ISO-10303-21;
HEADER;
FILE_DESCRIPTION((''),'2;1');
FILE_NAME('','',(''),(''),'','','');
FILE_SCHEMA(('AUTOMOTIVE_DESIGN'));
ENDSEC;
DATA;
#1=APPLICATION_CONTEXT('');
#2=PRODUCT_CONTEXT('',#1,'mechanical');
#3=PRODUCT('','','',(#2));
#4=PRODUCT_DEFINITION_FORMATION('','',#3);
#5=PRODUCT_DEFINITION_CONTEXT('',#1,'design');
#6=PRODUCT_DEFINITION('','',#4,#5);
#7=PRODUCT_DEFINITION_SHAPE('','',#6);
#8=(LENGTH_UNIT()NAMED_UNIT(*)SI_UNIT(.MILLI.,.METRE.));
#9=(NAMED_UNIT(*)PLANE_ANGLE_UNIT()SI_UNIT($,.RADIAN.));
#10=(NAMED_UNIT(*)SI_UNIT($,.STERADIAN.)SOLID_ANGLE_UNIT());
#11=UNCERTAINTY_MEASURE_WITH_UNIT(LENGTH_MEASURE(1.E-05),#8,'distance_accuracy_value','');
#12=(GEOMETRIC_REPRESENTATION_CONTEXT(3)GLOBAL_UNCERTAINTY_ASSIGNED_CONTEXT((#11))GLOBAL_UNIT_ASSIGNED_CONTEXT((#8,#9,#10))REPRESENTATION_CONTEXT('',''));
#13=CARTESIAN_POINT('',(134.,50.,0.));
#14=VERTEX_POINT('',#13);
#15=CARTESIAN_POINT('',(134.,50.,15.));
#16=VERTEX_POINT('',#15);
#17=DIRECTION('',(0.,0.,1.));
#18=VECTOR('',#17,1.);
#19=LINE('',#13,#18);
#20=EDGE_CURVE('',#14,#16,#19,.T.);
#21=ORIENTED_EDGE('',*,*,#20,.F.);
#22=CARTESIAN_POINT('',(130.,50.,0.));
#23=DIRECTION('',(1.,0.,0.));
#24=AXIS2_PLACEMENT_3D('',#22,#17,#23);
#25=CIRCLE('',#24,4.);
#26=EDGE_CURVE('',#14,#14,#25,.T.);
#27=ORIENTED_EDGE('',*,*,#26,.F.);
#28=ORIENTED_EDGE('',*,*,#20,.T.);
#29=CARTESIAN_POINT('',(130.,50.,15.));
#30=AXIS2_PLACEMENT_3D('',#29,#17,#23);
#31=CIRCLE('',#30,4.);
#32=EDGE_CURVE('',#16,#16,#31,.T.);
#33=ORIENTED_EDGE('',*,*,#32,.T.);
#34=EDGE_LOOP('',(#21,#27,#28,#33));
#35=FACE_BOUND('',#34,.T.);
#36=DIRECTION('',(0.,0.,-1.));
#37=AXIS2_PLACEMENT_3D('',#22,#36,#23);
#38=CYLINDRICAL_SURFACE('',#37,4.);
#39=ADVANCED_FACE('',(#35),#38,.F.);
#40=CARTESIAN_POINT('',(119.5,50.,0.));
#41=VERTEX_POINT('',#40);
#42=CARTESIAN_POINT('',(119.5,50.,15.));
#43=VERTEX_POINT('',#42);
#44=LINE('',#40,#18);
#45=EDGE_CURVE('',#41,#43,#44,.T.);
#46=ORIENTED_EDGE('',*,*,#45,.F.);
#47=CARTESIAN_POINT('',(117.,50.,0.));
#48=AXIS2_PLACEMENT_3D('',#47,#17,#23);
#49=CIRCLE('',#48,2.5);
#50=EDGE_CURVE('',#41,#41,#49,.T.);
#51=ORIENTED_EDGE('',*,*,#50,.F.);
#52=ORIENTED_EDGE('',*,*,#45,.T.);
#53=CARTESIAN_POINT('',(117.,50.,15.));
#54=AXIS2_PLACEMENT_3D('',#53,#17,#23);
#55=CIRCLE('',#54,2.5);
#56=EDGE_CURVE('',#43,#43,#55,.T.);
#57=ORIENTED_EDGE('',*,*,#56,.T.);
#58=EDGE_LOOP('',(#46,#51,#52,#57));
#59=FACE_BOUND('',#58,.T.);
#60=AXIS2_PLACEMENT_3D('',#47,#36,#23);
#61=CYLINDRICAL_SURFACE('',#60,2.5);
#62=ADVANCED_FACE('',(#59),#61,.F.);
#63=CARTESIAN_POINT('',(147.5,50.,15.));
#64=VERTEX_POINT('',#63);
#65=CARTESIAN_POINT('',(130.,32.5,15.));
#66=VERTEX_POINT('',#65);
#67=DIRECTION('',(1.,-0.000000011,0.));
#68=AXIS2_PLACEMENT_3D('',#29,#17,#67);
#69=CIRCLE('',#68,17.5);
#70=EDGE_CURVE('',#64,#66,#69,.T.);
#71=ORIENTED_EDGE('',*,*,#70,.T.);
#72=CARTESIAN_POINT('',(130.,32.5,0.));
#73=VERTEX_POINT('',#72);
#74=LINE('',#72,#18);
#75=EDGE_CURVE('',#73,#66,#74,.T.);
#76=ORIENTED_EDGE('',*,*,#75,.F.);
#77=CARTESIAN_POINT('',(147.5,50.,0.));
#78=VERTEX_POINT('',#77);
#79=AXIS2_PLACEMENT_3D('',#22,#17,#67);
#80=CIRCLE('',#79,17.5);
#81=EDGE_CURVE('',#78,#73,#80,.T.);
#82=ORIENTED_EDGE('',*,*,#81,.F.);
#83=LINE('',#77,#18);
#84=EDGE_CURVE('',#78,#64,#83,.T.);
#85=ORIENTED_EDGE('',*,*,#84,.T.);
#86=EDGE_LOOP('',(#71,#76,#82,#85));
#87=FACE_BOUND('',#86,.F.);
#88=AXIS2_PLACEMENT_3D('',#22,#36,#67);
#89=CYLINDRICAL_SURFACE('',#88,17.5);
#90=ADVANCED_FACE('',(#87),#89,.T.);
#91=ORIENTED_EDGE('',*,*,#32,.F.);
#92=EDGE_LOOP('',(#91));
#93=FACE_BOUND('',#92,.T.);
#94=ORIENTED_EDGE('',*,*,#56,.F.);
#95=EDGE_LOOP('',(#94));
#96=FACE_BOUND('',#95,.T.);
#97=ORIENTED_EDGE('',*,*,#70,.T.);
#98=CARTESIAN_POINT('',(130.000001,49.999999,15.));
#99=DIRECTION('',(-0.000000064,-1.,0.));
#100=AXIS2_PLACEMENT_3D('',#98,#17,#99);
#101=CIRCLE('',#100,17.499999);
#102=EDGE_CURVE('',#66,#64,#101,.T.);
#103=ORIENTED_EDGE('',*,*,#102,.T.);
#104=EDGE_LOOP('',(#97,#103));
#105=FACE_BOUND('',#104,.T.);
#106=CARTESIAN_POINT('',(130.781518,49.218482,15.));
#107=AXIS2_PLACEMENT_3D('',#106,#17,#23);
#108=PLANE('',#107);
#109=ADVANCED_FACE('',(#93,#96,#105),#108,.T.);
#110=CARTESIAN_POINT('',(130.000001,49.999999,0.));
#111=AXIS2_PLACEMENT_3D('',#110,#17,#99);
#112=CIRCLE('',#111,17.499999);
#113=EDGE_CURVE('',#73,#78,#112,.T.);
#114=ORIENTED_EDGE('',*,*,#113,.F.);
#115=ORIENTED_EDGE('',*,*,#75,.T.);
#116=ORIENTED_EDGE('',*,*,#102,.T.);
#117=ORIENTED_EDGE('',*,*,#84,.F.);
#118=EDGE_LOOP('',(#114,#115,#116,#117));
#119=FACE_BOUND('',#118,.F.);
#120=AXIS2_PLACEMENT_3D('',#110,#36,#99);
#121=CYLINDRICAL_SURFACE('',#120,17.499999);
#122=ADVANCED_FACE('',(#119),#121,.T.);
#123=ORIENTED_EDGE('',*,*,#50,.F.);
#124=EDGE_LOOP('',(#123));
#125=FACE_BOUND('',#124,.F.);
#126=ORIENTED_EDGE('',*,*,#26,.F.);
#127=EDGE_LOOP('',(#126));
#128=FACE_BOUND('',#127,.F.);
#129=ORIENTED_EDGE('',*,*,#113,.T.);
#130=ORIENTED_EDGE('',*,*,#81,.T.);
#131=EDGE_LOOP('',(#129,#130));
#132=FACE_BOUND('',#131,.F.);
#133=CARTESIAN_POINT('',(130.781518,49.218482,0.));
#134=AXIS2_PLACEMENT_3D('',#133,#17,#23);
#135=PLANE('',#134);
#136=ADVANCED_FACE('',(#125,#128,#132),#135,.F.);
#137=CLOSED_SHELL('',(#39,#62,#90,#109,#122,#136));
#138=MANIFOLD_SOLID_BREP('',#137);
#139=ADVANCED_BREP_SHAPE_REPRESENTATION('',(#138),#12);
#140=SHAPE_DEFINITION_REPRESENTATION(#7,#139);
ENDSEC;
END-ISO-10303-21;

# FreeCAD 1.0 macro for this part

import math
import FreeCAD as App
import Part
import Sketcher
Q = App.Units.Quantity

doc = App.newDocument("Part")
body = doc.addObject("PartDesign::Body", "Body")

sketch1 = body.newObject("Sketcher::SketchObject", "Sketch")
sketch1.AttachmentSupport = (doc.getObject("XY_Plane"), [""])
sketch1.MapMode = "FlatFace"
sketch1.addGeometry([
    Part.ArcOfCircle(Part.Circle(App.Vector(130, 50, 0), App.Vector(0, 0, 1), 17.5), math.radians(-90), math.radians(0)),
    Part.ArcOfCircle(Part.Circle(App.Vector(130, 50, 0), App.Vector(0, 0, 1), 17.5), math.radians(0), math.radians(270)),
    Part.Circle(App.Vector(117, 50, 0), App.Vector(0, 0, 1), 2.5),
    Part.Circle(App.Vector(130, 50, 0), App.Vector(0, 0, 1), 4),
], False)
sketch1.addConstraint([
    Sketcher.Constraint("Tangent", 0, 1, 1, 2),
    Sketcher.Constraint("Coincident", 1, 1, 0, 2),
    Sketcher.Constraint("Coincident", 3, 3, 0, 3),
    Sketcher.Constraint("Horizontal", 1, 3, 2, 3),
    Sketcher.Constraint("Horizontal", 3, 3, 1, 1),
    Sketcher.Constraint("Vertical", 3, 3, 0, 1),
    Sketcher.Constraint("Diameter", 2, Q("5 mm")),
    Sketcher.Constraint("Diameter", 3, Q("8 mm")),
    Sketcher.Constraint("Radius", 0, Q("17.499999 mm")),
    Sketcher.Constraint("DistanceX", -1, 1, 0, 3, Q("130.000001 mm")),
    Sketcher.Constraint("DistanceY", -1, 1, 0, 3, Q("49.999999 mm")),
    Sketcher.Constraint("DistanceX", -1, 1, 2, 3, Q("117 mm")),
])
pad1 = body.newObject("PartDesign::Pad", "Pad")
pad1.Profile = sketch1
pad1.Length = 15

doc.recompute()
